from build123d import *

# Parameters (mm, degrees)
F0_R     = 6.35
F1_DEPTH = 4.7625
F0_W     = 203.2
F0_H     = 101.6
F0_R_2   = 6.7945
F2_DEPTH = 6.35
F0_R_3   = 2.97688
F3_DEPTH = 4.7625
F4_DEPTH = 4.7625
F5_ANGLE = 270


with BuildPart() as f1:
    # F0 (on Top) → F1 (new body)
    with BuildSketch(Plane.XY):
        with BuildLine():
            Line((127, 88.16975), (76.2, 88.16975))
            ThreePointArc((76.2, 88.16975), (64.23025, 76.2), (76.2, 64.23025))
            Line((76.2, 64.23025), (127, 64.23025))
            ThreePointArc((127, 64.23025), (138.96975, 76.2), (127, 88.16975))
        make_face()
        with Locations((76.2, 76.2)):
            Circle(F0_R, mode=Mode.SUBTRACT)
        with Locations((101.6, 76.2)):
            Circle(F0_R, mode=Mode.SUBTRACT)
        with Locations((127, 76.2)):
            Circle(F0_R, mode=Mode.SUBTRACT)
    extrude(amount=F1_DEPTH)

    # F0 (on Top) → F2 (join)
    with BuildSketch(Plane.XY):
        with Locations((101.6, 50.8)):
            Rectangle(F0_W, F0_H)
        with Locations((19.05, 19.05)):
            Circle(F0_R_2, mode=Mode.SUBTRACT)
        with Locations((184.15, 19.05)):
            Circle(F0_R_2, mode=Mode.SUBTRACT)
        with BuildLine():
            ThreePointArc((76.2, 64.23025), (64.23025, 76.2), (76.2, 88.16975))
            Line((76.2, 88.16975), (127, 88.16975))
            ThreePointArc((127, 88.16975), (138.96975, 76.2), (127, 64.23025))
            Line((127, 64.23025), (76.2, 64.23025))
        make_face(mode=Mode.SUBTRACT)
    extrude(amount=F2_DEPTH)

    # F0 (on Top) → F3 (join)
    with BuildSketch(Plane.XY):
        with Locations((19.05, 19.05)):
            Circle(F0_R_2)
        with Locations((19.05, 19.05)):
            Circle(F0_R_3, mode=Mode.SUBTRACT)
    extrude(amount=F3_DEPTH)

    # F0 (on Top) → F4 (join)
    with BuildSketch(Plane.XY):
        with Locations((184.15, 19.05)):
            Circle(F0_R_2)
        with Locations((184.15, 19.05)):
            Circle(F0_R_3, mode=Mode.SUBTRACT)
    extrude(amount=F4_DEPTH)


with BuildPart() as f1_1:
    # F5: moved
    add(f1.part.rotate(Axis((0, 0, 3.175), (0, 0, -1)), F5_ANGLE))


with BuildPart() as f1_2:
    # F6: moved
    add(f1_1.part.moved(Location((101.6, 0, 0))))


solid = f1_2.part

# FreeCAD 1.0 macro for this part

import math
import FreeCAD as App
import Part
import Sketcher
Q = App.Units.Quantity

doc = App.newDocument("Part")
body = doc.addObject("PartDesign::Body", "Body")

# Sketch on XY plane
sketch1 = body.newObject("Sketcher::SketchObject", "Sketch")
sketch1.AttachmentSupport = (doc.getObject("XY_Plane"), [""])
sketch1.MapMode = "FlatFace"
sketch1.addGeometry([
    Part.LineSegment(App.Vector(127, 88, 0), App.Vector(76, 88, 0)),  # 0
    Part.ArcOfCircle(Part.Circle(App.Vector(76, 76, 0), App.Vector(0, 0, 1), 12), math.radians(90), math.radians(270)),  # 1
    Part.LineSegment(App.Vector(76, 64, 0), App.Vector(127, 64, 0)),  # 2
    Part.ArcOfCircle(Part.Circle(App.Vector(127, 76, 0), App.Vector(0, 0, 1), 12), math.radians(-90), math.radians(90)),  # 3
    Part.Circle(App.Vector(76, 76, 0), App.Vector(0, 0, 1), 6),  # 4
    Part.Circle(App.Vector(102, 76, 0), App.Vector(0, 0, 1), 6),  # 5
    Part.Circle(App.Vector(127, 76, 0), App.Vector(0, 0, 1), 6),  # 6
], False)
sketch1.addConstraint([
    Sketcher.Constraint("Tangent", 0, 2, 1, 1),
    Sketcher.Constraint("Tangent", 1, 2, 2, 1),
    Sketcher.Constraint("Tangent", 2, 2, 3, 1),
    Sketcher.Constraint("Tangent", 3, 2, 0, 1),
    Sketcher.Constraint("Horizontal", 0),
    Sketcher.Constraint("Horizontal", 2),
    Sketcher.Constraint("Coincident", 4, 3, 1, 3),
    Sketcher.Constraint("Coincident", 6, 3, 3, 3),
    Sketcher.Constraint("Equal", 4, 5),
    Sketcher.Constraint("Equal", 5, 6),
    Sketcher.Constraint("Horizontal", 4, 3, 5, 3),
    Sketcher.Constraint("Diameter", 4, Q("0.5 in")),
    Sketcher.Constraint("DistanceX", 0, 2, 0, 1, Q("2 in")),
    Sketcher.Constraint("DistanceX", -1, 1, 1, 3, Q("3 in")),
    Sketcher.Constraint("DistanceY", -1, 1, 1, 3, Q("3 in")),
    Sketcher.Constraint("DistanceX", -1, 1, 5, 3, Q("4 in")),
    Sketcher.Constraint("Radius", 1, Q("11.96975 mm")),
])
pad1 = body.newObject("PartDesign::Pad", "Pad")
pad1.Profile = sketch1
pad1.Length = Q("0.1875 in")

# Sketch on XY plane
sketch2 = body.newObject("Sketcher::SketchObject", "Sketch001")
sketch2.AttachmentSupport = (doc.getObject("XY_Plane"), [""])
sketch2.MapMode = "FlatFace"
sketch2.addGeometry([
    Part.LineSegment(App.Vector(0, 102, 0), App.Vector(0, 0, 0)),  # 0
    Part.LineSegment(App.Vector(0, 0, 0), App.Vector(203, 0, 0)),  # 1
    Part.LineSegment(App.Vector(203, 0, 0), App.Vector(203, 102, 0)),  # 2
    Part.LineSegment(App.Vector(203, 102, 0), App.Vector(0, 102, 0)),  # 3
    Part.Circle(App.Vector(19, 19, 0), App.Vector(0, 0, 1), 7),  # 4
    Part.Circle(App.Vector(184, 19, 0), App.Vector(0, 0, 1), 7),  # 5
    Part.LineSegment(App.Vector(127, 64, 0), App.Vector(76, 64, 0)),  # 6
    Part.ArcOfCircle(Part.Circle(App.Vector(76, 76, 0), App.Vector(0, 0, 1), 12), math.radians(90), math.radians(270)),  # 7
    Part.LineSegment(App.Vector(76, 88, 0), App.Vector(127, 88, 0)),  # 8
    Part.ArcOfCircle(Part.Circle(App.Vector(127, 76, 0), App.Vector(0, 0, 1), 12), math.radians(-90), math.radians(90)),  # 9
], False)
sketch2.addConstraint([
    Sketcher.Constraint("Coincident", 0, 2, 1, 1),
    Sketcher.Constraint("Coincident", 1, 2, 2, 1),
    Sketcher.Constraint("Coincident", 2, 2, 3, 1),
    Sketcher.Constraint("Coincident", 3, 2, 0, 1),
    Sketcher.Constraint("Tangent", 6, 2, 7, 2),
    Sketcher.Constraint("Tangent", 7, 1, 8, 1),
    Sketcher.Constraint("Tangent", 8, 2, 9, 2),
    Sketcher.Constraint("Tangent", 9, 1, 6, 1),
    Sketcher.Constraint("Vertical", 0),
    Sketcher.Constraint("Horizontal", 1),
    Sketcher.Constraint("Vertical", 2),
    Sketcher.Constraint("Horizontal", 3),
    Sketcher.Constraint("Horizontal", 6),
    Sketcher.Constraint("Horizontal", 8),
    Sketcher.Constraint("Coincident", 0, 2, -1, 1),
    Sketcher.Constraint("Equal", 4, 5),
    Sketcher.Constraint("Horizontal", 4, 3, 5, 3),
    Sketcher.Constraint("DistanceX", 1, 1, 1, 2, Q("8 in")),
    Sketcher.Constraint("DistanceX", 6, 2, 6, 1, Q("2 in")),
    Sketcher.Constraint("DistanceY", 0, 2, 0, 1, Q("4 in")),
    Sketcher.Constraint("Diameter", 4, Q("0.535 in")),
    Sketcher.Constraint("DistanceX", -1, 1, 7, 3, Q("3 in")),
    Sketcher.Constraint("DistanceY", -1, 1, 7, 3, Q("3 in")),
    Sketcher.Constraint("DistanceX", 4, 3, 5, 3, Q("6.5 in")),
    Sketcher.Constraint("DistanceX", -1, 1, 4, 3, Q("0.75 in")),
    Sketcher.Constraint("DistanceY", -1, 1, 4, 3, Q("0.75 in")),
    Sketcher.Constraint("Radius", 7, Q("11.96975 mm")),
])
pad2 = body.newObject("PartDesign::Pad", "Pad001")
pad2.Profile = sketch2
pad2.Length = Q("0.25 in")

# Sketch on XY plane
sketch3 = body.newObject("Sketcher::SketchObject", "Sketch002")
sketch3.AttachmentSupport = (doc.getObject("XY_Plane"), [""])
sketch3.MapMode = "FlatFace"
sketch3.addGeometry([
    Part.Circle(App.Vector(19.1, 19.1, 0), App.Vector(0, 0, 1), 6.8),
    Part.Circle(App.Vector(19.1, 19.1, 0), App.Vector(0, 0, 1), 3),
], False)
sketch3.addConstraint([
    Sketcher.Constraint("Coincident", 1, 3, 0, 3),
    Sketcher.Constraint("Diameter", 0, Q("0.535 in")),
    Sketcher.Constraint("Diameter", 1, Q("0.2344 in")),
    Sketcher.Constraint("DistanceX", -1, 1, 0, 3, Q("0.75 in")),
    Sketcher.Constraint("DistanceY", -1, 1, 0, 3, Q("0.75 in")),
])
pad3 = body.newObject("PartDesign::Pad", "Pad002")
pad3.Profile = sketch3
pad3.Length = Q("0.1875 in")

# Sketch on XY plane
sketch4 = body.newObject("Sketcher::SketchObject", "Sketch003")
sketch4.AttachmentSupport = (doc.getObject("XY_Plane"), [""])
sketch4.MapMode = "FlatFace"
sketch4.addGeometry([
    Part.Circle(App.Vector(184.2, 19.1, 0), App.Vector(0, 0, 1), 6.8),
    Part.Circle(App.Vector(184.2, 19.1, 0), App.Vector(0, 0, 1), 3),
], False)
sketch4.addConstraint([
    Sketcher.Constraint("Coincident", 1, 3, 0, 3),
    Sketcher.Constraint("Diameter", 0, Q("0.535 in")),
    Sketcher.Constraint("Diameter", 1, Q("0.2344 in")),
    Sketcher.Constraint("DistanceX", -1, 1, 0, 3, Q("7.25 in")),
    Sketcher.Constraint("DistanceY", -1, 1, 0, 3, Q("0.75 in")),
])
pad4 = body.newObject("PartDesign::Pad", "Pad003")
pad4.Profile = sketch4
pad4.Length = Q("0.1875 in")
body2 = doc.addObject("PartDesign::Body", "Body001")
doc.recompute()

body.Placement = App.Placement(App.Vector(0, 0, 0), App.Rotation(App.Vector(0, 0, -1), 270))
boolean = body2.newObject("PartDesign::Boolean", "Boolean")
boolean.Type = "Fuse"
boolean.addObjects([body])
body3 = doc.addObject("PartDesign::Body", "Body002")
doc.recompute()

body2.Placement = App.Placement(App.Vector(101.6, 0, 0), App.Rotation(App.Vector(0, 0, 1), 0))
boolean2 = body3.newObject("PartDesign::Boolean", "Boolean001")
boolean2.Type = "Fuse"
boolean2.addObjects([body2])

doc.recompute()
